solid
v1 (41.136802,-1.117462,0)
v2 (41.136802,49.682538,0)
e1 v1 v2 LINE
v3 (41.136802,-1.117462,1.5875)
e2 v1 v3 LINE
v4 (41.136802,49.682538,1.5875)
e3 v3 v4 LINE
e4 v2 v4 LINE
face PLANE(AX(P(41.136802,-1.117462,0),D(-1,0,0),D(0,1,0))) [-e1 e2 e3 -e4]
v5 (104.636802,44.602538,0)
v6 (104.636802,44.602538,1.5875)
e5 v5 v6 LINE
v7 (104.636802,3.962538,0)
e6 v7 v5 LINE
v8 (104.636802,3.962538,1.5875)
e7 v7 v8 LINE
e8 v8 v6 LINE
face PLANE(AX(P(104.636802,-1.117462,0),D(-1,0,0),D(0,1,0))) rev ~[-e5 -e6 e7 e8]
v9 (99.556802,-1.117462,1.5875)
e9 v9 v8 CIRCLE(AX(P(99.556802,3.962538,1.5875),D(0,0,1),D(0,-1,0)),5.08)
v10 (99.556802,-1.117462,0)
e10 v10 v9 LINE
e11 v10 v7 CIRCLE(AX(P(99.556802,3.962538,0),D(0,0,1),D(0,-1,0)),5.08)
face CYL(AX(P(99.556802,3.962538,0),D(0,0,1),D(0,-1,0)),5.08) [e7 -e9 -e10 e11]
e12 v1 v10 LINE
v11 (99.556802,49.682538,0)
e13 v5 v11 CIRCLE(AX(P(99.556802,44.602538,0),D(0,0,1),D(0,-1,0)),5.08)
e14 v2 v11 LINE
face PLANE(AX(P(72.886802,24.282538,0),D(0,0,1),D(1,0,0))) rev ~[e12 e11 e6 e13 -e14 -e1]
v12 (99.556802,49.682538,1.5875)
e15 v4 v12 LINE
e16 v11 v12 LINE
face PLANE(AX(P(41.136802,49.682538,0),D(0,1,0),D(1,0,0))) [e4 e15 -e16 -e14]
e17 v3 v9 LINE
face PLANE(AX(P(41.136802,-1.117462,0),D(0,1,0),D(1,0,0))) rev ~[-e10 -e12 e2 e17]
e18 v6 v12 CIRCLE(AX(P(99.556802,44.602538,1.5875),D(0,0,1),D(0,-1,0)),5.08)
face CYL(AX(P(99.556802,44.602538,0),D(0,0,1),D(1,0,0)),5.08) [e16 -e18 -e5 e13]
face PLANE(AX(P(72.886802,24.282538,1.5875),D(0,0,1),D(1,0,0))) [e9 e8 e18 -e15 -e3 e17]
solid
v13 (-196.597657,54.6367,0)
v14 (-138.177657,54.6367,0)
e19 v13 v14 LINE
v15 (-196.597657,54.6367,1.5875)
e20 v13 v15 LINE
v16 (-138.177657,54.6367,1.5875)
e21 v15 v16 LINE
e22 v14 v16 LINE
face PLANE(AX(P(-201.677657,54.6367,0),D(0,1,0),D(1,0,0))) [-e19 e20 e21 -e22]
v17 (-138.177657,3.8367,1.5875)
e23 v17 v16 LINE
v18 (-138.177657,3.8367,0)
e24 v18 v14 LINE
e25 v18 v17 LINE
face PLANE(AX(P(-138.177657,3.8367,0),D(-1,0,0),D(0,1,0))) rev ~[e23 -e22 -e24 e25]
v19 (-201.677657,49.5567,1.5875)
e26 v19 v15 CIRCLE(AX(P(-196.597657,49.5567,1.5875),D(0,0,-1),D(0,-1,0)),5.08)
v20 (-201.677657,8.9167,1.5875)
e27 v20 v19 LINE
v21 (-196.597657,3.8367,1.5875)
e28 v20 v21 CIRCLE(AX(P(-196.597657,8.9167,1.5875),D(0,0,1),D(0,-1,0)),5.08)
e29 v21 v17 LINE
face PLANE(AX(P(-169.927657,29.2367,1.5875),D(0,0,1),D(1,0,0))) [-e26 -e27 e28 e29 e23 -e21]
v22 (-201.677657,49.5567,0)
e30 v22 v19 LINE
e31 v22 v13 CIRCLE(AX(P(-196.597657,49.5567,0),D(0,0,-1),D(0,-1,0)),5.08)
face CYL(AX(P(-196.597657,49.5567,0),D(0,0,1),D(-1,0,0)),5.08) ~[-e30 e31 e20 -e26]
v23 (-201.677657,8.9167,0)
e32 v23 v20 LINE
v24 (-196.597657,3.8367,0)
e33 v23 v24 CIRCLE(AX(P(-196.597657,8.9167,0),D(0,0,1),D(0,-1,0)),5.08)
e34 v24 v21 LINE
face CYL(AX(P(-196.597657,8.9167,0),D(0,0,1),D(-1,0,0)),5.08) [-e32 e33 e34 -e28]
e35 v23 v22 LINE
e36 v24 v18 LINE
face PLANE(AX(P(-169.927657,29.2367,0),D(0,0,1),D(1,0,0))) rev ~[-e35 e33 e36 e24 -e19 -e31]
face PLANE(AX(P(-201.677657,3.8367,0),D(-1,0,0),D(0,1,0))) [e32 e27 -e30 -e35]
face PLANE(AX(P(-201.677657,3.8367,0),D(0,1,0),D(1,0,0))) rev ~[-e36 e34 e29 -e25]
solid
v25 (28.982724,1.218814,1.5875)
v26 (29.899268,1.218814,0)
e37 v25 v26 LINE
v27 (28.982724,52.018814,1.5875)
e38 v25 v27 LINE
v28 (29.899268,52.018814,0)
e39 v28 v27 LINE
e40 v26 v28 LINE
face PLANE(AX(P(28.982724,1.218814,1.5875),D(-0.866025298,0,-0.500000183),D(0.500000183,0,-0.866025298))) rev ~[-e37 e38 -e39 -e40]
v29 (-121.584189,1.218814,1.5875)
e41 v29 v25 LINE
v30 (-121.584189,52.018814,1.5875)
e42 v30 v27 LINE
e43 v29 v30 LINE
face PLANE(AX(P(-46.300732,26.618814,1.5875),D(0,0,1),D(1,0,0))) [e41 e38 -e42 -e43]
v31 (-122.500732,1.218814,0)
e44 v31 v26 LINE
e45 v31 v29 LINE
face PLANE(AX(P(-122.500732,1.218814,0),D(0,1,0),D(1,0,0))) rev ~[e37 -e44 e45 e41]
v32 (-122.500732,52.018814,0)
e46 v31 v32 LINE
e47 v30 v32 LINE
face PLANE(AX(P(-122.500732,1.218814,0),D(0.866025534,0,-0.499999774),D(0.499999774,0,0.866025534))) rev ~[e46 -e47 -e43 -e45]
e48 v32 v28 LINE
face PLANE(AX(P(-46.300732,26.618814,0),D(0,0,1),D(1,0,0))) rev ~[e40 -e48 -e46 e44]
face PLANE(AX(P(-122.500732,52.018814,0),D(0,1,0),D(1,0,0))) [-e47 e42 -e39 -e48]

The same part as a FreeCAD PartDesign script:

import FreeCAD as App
import Part
import Sketcher

V = App.Vector
Q = App.Units.Quantity


def edges_at(feature, points):
    """Names of the edges that pass closest to the given points."""
    edges = feature.Shape.Edges
    near = lambda p: min(range(len(edges)), key=lambda i: edges[i].distToShape(Part.Vertex(*p))[0])
    return sorted({f"Edge{near(p) + 1}" for p in points})

doc = App.newDocument("Part")
body = doc.addObject("PartDesign::Body", "Body")

# Sketch on XY plane
sketch1 = body.newObject("Sketcher::SketchObject", "Sketch")
sketch1.AttachmentSupport = (doc.getObject("XY_Plane"), [""])
sketch1.MapMode = "FlatFace"
sketch1.addGeometry([
    Part.LineSegment(V(-123, 52, 0), V(-123, 1, 0)),
    Part.LineSegment(V(-123, 1, 0), V(30, 1, 0)),
    Part.LineSegment(V(30, 1, 0), V(30, 52, 0)),
    Part.LineSegment(V(30, 52, 0), V(-123, 52, 0)),
], False)
sketch1.addConstraint([
    Sketcher.Constraint("Coincident", 0, 2, 1, 1),
    Sketcher.Constraint("Coincident", 1, 2, 2, 1),
    Sketcher.Constraint("Coincident", 2, 2, 3, 1),
    Sketcher.Constraint("Coincident", 3, 2, 0, 1),
    Sketcher.Constraint("Vertical", 0),
    Sketcher.Constraint("Horizontal", 1),
    Sketcher.Constraint("Vertical", 2),
    Sketcher.Constraint("Horizontal", 3),
    Sketcher.Constraint("DistanceX", 1, 1, 1, 2, Q("6 in")),
    Sketcher.Constraint("DistanceY", 0, 2, 0, 1, Q("2 in")),
    Sketcher.Constraint("DistanceX", 0, 2, -1, 1, 122.500732),
    Sketcher.Constraint("DistanceY", -1, 1, 0, 2, 1.218814),
])
pad1 = body.newObject("PartDesign::Pad", "Pad")
pad1.Profile = sketch1
pad1.Length = Q("0.0625 in")

# Sketch on XZ plane
sketch2 = body.newObject("Sketcher::SketchObject", "Sketch001")
sketch2.AttachmentSupport = (doc.getObject("XZ_Plane"), [""])
sketch2.MapMode = "FlatFace"
sketch2.AttachmentOffset = App.Placement(V(0, 0, -1.218814), App.Rotation())
sketch2.addGeometry([
    Part.LineSegment(V(29, 1.6, 0), V(29.9, 0, 0)),
    Part.LineSegment(V(29.9, 0, 0), V(29.9, 1.6, 0)),
    Part.LineSegment(V(29.9, 1.6, 0), V(29, 1.6, 0)),
], False)
sketch2.addConstraint([
    Sketcher.Constraint("Coincident", 0, 2, 1, 1),
    Sketcher.Constraint("Coincident", 1, 2, 2, 1),
    Sketcher.Constraint("Coincident", 2, 2, 0, 1),
    Sketcher.Constraint("Vertical", 1),
    Sketcher.Constraint("Horizontal", 2),
    Sketcher.Constraint("PointOnObject", 0, 2, -1),
    Sketcher.Constraint("Angle", 0, Q("-59.999988 deg")),
    Sketcher.Constraint("DistanceY", 1, 1, 1, 2, Q("0.0625 in")),
    Sketcher.Constraint("DistanceX", -1, 1, 0, 2, 29.899268),
])
pocket1 = body.newObject("PartDesign::Pocket", "Pocket")
pocket1.Profile = sketch2
pocket1.Type = "ThroughAll"

# Sketch on XZ plane
sketch3 = body.newObject("Sketcher::SketchObject", "Sketch002")
sketch3.AttachmentSupport = (doc.getObject("XZ_Plane"), [""])
sketch3.MapMode = "FlatFace"
sketch3.AttachmentOffset = App.Placement(V(0, 0, -1.218814), App.Rotation())
sketch3.addGeometry([
    Part.LineSegment(V(-122.5, 1.6, 0), V(-122.5, 0, 0)),
    Part.LineSegment(V(-122.5, 0, 0), V(-121.6, 1.6, 0)),
    Part.LineSegment(V(-121.6, 1.6, 0), V(-122.5, 1.6, 0)),
], False)
sketch3.addConstraint([
    Sketcher.Constraint("Coincident", 0, 2, 1, 1),
    Sketcher.Constraint("Coincident", 1, 2, 2, 1),
    Sketcher.Constraint("Coincident", 2, 2, 0, 1),
    Sketcher.Constraint("Vertical", 0),
    Sketcher.Constraint("Horizontal", 2),
    Sketcher.Constraint("PointOnObject", 0, 2, -1),
    Sketcher.Constraint("Angle", 1, Q("60.000015 deg")),
    Sketcher.Constraint("DistanceY", 0, 2, 0, 1, Q("0.0625 in")),
    Sketcher.Constraint("DistanceX", 0, 2, -1, 1, 122.500732),
])
pocket2 = body.newObject("PartDesign::Pocket", "Pocket001")
pocket2.Profile = sketch3
pocket2.Type = "ThroughAll"
body2 = doc.addObject("PartDesign::Body", "Body001")

# Sketch on XY plane
sketch4 = body2.newObject("Sketcher::SketchObject", "Sketch003")
sketch4.AttachmentSupport = (doc.getObject("XY_Plane001"), [""])
sketch4.MapMode = "FlatFace"
sketch4.addGeometry([
    Part.LineSegment(V(41, 50, 0), V(41, -1, 0)),
    Part.LineSegment(V(41, -1, 0), V(105, -1, 0)),
    Part.LineSegment(V(105, -1, 0), V(105, 50, 0)),
    Part.LineSegment(V(105, 50, 0), V(41, 50, 0)),
], False)
sketch4.addConstraint([
    Sketcher.Constraint("Coincident", 0, 2, 1, 1),
    Sketcher.Constraint("Coincident", 1, 2, 2, 1),
    Sketcher.Constraint("Coincident", 2, 2, 3, 1),
    Sketcher.Constraint("Coincident", 3, 2, 0, 1),
    Sketcher.Constraint("Vertical", 0),
    Sketcher.Constraint("Horizontal", 1),
    Sketcher.Constraint("Vertical", 2),
    Sketcher.Constraint("Horizontal", 3),
    Sketcher.Constraint("DistanceY", 0, 2, 0, 1, Q("2 in")),
    Sketcher.Constraint("DistanceX", 1, 1, 1, 2, Q("2.5 in")),
    Sketcher.Constraint("DistanceX", -1, 1, 0, 2, 41.136802),
    Sketcher.Constraint("DistanceY", 0, 2, -1, 1, 1.117462),
])
pad2 = body2.newObject("PartDesign::Pad", "Pad001")
pad2.Profile = sketch4
pad2.Length = Q("0.0625 in")
doc.recompute()

fillet = body2.newObject("PartDesign::Fillet", "Fillet")
fillet.Base = (pad2, edges_at(pad2, [(104.637, -1.117, 0.794), (104.637, 49.683, 0.794)]))
fillet.Radius = Q("0.2 in")
body3 = doc.addObject("PartDesign::Body", "Body002")

# Sketch on XY plane
sketch5 = body3.newObject("Sketcher::SketchObject", "Sketch004")
sketch5.AttachmentSupport = (doc.getObject("XY_Plane002"), [""])
sketch5.MapMode = "FlatFace"
sketch5.addGeometry([
    Part.LineSegment(V(-202, 55, 0), V(-202, 4, 0)),
    Part.LineSegment(V(-202, 4, 0), V(-138, 4, 0)),
    Part.LineSegment(V(-138, 4, 0), V(-138, 55, 0)),
    Part.LineSegment(V(-138, 55, 0), V(-202, 55, 0)),
], False)
sketch5.addConstraint([
    Sketcher.Constraint("Coincident", 0, 2, 1, 1),
    Sketcher.Constraint("Coincident", 1, 2, 2, 1),
    Sketcher.Constraint("Coincident", 2, 2, 3, 1),
    Sketcher.Constraint("Coincident", 3, 2, 0, 1),
    Sketcher.Constraint("Vertical", 0),
    Sketcher.Constraint("Horizontal", 1),
    Sketcher.Constraint("Vertical", 2),
    Sketcher.Constraint("Horizontal", 3),
    Sketcher.Constraint("DistanceY", 0, 2, 0, 1, Q("2 in")),
    Sketcher.Constraint("DistanceX", 1, 1, 1, 2, Q("2.5 in")),
    Sketcher.Constraint("DistanceY", -1, 1, 0, 2, 3.8367),
    Sketcher.Constraint("DistanceX", 0, 2, -1, 1, 201.677657),
])
pad3 = body3.newObject("PartDesign::Pad", "Pad002")
pad3.Profile = sketch5
pad3.Length = Q("0.0625 in")
doc.recompute()

fillet2 = body3.newObject("PartDesign::Fillet", "Fillet001")
fillet2.Base = (pad3, edges_at(pad3, [(-201.678, 3.837, 0.794), (-201.678, 54.637, 0.794)]))
fillet2.Radius = Q("0.2 in")

doc.recompute()
